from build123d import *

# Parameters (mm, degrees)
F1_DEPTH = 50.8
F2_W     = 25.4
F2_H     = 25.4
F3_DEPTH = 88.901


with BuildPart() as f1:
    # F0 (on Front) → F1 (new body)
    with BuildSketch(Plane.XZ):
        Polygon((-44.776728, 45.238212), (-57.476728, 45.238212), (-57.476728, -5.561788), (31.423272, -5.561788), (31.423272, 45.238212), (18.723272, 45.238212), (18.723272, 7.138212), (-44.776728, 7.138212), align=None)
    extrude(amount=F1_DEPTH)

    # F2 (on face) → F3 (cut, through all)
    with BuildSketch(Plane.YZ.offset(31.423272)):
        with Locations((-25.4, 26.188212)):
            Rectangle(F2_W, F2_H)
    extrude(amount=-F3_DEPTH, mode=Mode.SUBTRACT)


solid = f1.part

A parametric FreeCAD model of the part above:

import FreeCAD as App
import Part
import Sketcher

V = App.Vector
Q = App.Units.Quantity


def add_polygon(sketch, points):
    """Adds a closed chain of lines whose ends are joined by coincident constraints."""
    first, n = sketch.GeometryCount, len(points)
    for a, b in zip(points, points[1:] + points[:1]):
        sketch.addGeometry(Part.LineSegment(App.Vector(*a, 0), App.Vector(*b, 0)), False)
    for i in range(n):
        sketch.addConstraint(Sketcher.Constraint("Coincident", first + i, 2, first + (i + 1) % n, 1))

doc = App.newDocument("Part")
body = doc.addObject("PartDesign::Body", "Body")

# Sketch on XZ plane
sketch1 = body.newObject("Sketcher::SketchObject", "Sketch")
sketch1.AttachmentSupport = (doc.getObject("XZ_Plane"), [""])
sketch1.MapMode = "FlatFace"
add_polygon(sketch1, [(-45, 45), (-57, 45), (-57, -6), (31, -6), (31, 45), (19, 45), (19, 7), (-45, 7)])  # lines 0-7
sketch1.addConstraint([
    Sketcher.Constraint("Horizontal", 0),
    Sketcher.Constraint("Vertical", 1),
    Sketcher.Constraint("Horizontal", 2),
    Sketcher.Constraint("Vertical", 3),
    Sketcher.Constraint("Horizontal", 4),
    Sketcher.Constraint("Vertical", 5),
    Sketcher.Constraint("Horizontal", 6),
    Sketcher.Constraint("Vertical", 7),
    Sketcher.Constraint("Horizontal", 0, 2, 3, 2),
    Sketcher.Constraint("Equal", 0, 4),
    Sketcher.Constraint("DistanceY", 1, 2, 1, 1, Q("2 in")),
    Sketcher.Constraint("DistanceX", 0, 2, 0, 1, Q("0.5 in")),
    Sketcher.Constraint("DistanceX", 2, 1, 2, 2, Q("3.5 in")),
    Sketcher.Constraint("DistanceY", 5, 2, 5, 1, Q("1.5 in")),
    Sketcher.Constraint("DistanceY", -1, 1, 0, 2, Q("45.238212 mm")),
    Sketcher.Constraint("DistanceX", 0, 2, -1, 1, Q("57.476728 mm")),
])
pad1 = body.newObject("PartDesign::Pad", "Pad")
pad1.Profile = sketch1
pad1.Length = Q("2 in")

# Sketch on YZ plane
sketch2 = body.newObject("Sketcher::SketchObject", "Sketch001")
sketch2.AttachmentSupport = (doc.getObject("YZ_Plane"), [""])
sketch2.MapMode = "FlatFace"
sketch2.AttachmentOffset = App.Placement(V(0, 0, 31.423272), App.Rotation())
add_polygon(sketch2, [(-38, 39), (-38, 13), (-13, 13), (-13, 39)])  # lines 0-3
sketch2.addConstraint([
    Sketcher.Constraint("Vertical", 0),
    Sketcher.Constraint("Horizontal", 1),
    Sketcher.Constraint("Vertical", 2),
    Sketcher.Constraint("Horizontal", 3),
    Sketcher.Constraint("Equal", 3, 0),
    Sketcher.Constraint("DistanceX", 1, 1, 1, 2, Q("1 in")),
    Sketcher.Constraint("DistanceX", 0, 2, -1, 1, Q("1.5 in")),
    Sketcher.Constraint("DistanceY", -1, 1, 0, 2, Q("13.488212 mm")),
])
pocket1 = body.newObject("PartDesign::Pocket", "Pocket")
pocket1.Profile = sketch2
pocket1.Type = "ThroughAll"

doc.recompute()
